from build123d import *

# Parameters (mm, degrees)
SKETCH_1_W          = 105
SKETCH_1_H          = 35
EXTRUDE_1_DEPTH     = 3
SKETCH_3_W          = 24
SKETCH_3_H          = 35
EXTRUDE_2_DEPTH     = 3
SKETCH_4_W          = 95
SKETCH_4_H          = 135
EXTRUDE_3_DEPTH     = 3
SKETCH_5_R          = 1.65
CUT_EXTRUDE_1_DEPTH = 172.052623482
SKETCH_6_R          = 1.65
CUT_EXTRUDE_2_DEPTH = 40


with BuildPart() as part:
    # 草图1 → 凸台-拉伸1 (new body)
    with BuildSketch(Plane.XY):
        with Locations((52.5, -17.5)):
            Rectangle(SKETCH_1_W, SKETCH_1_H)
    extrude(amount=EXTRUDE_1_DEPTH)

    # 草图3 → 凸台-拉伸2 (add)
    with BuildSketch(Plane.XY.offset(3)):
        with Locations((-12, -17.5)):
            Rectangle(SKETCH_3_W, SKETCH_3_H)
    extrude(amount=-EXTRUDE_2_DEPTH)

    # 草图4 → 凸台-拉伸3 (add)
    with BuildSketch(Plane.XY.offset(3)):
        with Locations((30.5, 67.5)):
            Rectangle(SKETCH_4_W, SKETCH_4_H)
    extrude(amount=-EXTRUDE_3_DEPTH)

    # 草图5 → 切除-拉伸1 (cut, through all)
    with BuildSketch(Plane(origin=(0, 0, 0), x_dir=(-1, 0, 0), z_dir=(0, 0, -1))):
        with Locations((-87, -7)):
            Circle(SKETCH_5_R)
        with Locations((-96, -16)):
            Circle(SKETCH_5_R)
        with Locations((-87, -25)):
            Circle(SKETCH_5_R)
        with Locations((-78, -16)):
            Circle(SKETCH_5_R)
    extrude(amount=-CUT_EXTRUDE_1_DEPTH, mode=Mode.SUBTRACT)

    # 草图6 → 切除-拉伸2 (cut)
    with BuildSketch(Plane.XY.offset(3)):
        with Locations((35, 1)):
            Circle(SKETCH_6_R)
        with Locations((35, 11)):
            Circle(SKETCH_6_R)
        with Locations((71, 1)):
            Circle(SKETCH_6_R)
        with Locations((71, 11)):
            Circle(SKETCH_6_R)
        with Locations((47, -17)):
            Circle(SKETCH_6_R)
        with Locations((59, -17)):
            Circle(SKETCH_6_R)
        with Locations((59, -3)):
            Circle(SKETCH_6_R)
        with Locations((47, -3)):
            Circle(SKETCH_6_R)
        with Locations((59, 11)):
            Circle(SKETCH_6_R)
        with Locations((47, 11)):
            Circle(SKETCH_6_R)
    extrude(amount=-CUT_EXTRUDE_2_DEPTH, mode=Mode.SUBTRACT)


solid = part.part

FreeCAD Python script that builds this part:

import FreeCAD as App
import Part
import Sketcher
from FreeCAD import Vector


def add_polygon(sketch, points):
    """Adds a closed chain of lines whose ends are joined by coincident constraints."""
    first, n = sketch.GeometryCount, len(points)
    for a, b in zip(points, points[1:] + points[:1]):
        sketch.addGeometry(Part.LineSegment(App.Vector(*a, 0), App.Vector(*b, 0)), False)
    for i in range(n):
        sketch.addConstraint(Sketcher.Constraint("Coincident", first + i, 2, first + (i + 1) % n, 1))

doc = App.newDocument("Part")
params = doc.addObject("Spreadsheet::Sheet", "Params")
for row, (alias, value) in enumerate([
    ("sketch1_width", "105 mm"),
    ("sketch1_height", "35 mm"),
    ("pad1_length", "3 mm"),
    ("sketch2_width", "24 mm"),
    ("sketch2_height", "35 mm"),
    ("pad2_length", "3 mm"),
    ("sketch3_width", "95 mm"),
    ("sketch3_height", "135 mm"),
    ("pad3_length", "3 mm"),
    ("sketch4_diameter", "3.3 mm"),
    ("sketch5_diameter", "3.3 mm"),
    ("pocket2_length", "40 mm"),
], start=1):
    params.set(f"A{row}", alias)
    params.set(f"B{row}", "=" + value)
    params.setAlias(f"B{row}", alias)

body = doc.addObject("PartDesign::Body", "Body")

# Sketch on XY plane
sketch1 = doc.addObject("Sketcher::SketchObject", "Sketch")
body.addObject(sketch1)
sketch1.AttachmentSupport = (doc.XY_Plane, [""])
sketch1.MapMode = "FlatFace"
add_polygon(sketch1, [(0, 0), (0, -35), (105, -35), (105, 0)])  # lines 0-3
sketch1.addConstraint(Sketcher.Constraint("Vertical", 0))
sketch1.addConstraint(Sketcher.Constraint("Horizontal", 1))
sketch1.addConstraint(Sketcher.Constraint("Vertical", 2))
sketch1.addConstraint(Sketcher.Constraint("Horizontal", 3))
sketch1.addConstraint(Sketcher.Constraint("Coincident", 3, 2, -1, 1))
sketch1.addConstraint(Sketcher.Constraint("DistanceX", 1, 1, 1, 2, 105.0))
sketch1.addConstraint(Sketcher.Constraint("DistanceY", 0, 2, 0, 1, 35.0))
sketch1.setExpression("Constraints[9]", "Params.sketch1_width")
sketch1.setExpression("Constraints[10]", "Params.sketch1_height")
pad1 = doc.addObject("PartDesign::Pad", "Pad")
body.addObject(pad1)
pad1.Profile = sketch1
pad1.setExpression("Length", "Params.pad1_length")

# Sketch on XY plane
sketch2 = doc.addObject("Sketcher::SketchObject", "Sketch001")
body.addObject(sketch2)
sketch2.AttachmentSupport = (doc.XY_Plane, [""])
sketch2.MapMode = "FlatFace"
sketch2.AttachmentOffset = App.Placement(Vector(0, 0, 3), App.Rotation())
add_polygon(sketch2, [(-24, 0), (-24, -35), (0, -35), (0, 0)])  # lines 0-3
sketch2.addConstraint(Sketcher.Constraint("Vertical", 0))
sketch2.addConstraint(Sketcher.Constraint("Horizontal", 1))
sketch2.addConstraint(Sketcher.Constraint("Vertical", 2))
sketch2.addConstraint(Sketcher.Constraint("Horizontal", 3))
sketch2.addConstraint(Sketcher.Constraint("Coincident", 2, 2, -1, 1))
sketch2.addConstraint(Sketcher.Constraint("DistanceX", 1, 1, 1, 2, 24.0))
sketch2.addConstraint(Sketcher.Constraint("DistanceY", 0, 2, 0, 1, 35.0))
sketch2.setExpression("Constraints[9]", "Params.sketch2_width")
sketch2.setExpression("Constraints[10]", "Params.sketch2_height")
pad2 = doc.addObject("PartDesign::Pad", "Pad001")
body.addObject(pad2)
pad2.Profile = sketch2
pad2.setExpression("Length", "Params.pad2_length")
pad2.Reversed = True

# Sketch on XY plane
sketch3 = doc.addObject("Sketcher::SketchObject", "Sketch002")
body.addObject(sketch3)
sketch3.AttachmentSupport = (doc.XY_Plane, [""])
sketch3.MapMode = "FlatFace"
sketch3.AttachmentOffset = App.Placement(Vector(0, 0, 3), App.Rotation())
add_polygon(sketch3, [(-17, 135), (-17, 0), (78, 0), (78, 135)])  # lines 0-3
sketch3.addConstraint(Sketcher.Constraint("Vertical", 0))
sketch3.addConstraint(Sketcher.Constraint("Horizontal", 1))
sketch3.addConstraint(Sketcher.Constraint("Vertical", 2))
sketch3.addConstraint(Sketcher.Constraint("Horizontal", 3))
sketch3.addConstraint(Sketcher.Constraint("PointOnObject", 0, 2, -1))
sketch3.addConstraint(Sketcher.Constraint("DistanceX", 1, 1, 1, 2, 95.0))
sketch3.addConstraint(Sketcher.Constraint("DistanceY", 0, 2, 0, 1, 135.0))
sketch3.addConstraint(Sketcher.Constraint("DistanceX", 0, 2, -1, 1, 17.0))
sketch3.setExpression("Constraints[9]", "Params.sketch3_width")
sketch3.setExpression("Constraints[10]", "Params.sketch3_height")
pad3 = doc.addObject("PartDesign::Pad", "Pad002")
body.addObject(pad3)
pad3.Profile = sketch3
pad3.setExpression("Length", "Params.pad3_length")
pad3.Reversed = True

# Sketch on XY plane
sketch4 = doc.addObject("Sketcher::SketchObject", "Sketch003")
body.addObject(sketch4)
sketch4.AttachmentSupport = (doc.XY_Plane, [""])
sketch4.MapMode = "FlatFace"
sketch4.addGeometry(Part.Circle(Vector(87, -7, 0), Vector(0, 0, 1), 1.6), False)
sketch4.addGeometry(Part.Circle(Vector(96, -16, 0), Vector(0, 0, 1), 1.6), False)
sketch4.addGeometry(Part.Circle(Vector(87, -25, 0), Vector(0, 0, 1), 1.6), False)
sketch4.addGeometry(Part.Circle(Vector(78, -16, 0), Vector(0, 0, 1), 1.6), False)
sketch4.addConstraint(Sketcher.Constraint("Equal", 0, 1))
sketch4.addConstraint(Sketcher.Constraint("Equal", 1, 2))
sketch4.addConstraint(Sketcher.Constraint("Equal", 2, 3))
sketch4.addConstraint(Sketcher.Constraint("Horizontal", 1, 3, 3, 3))
sketch4.addConstraint(Sketcher.Constraint("Vertical", 0, 3, 2, 3))
sketch4.addConstraint(Sketcher.Constraint("Diameter", 0, 3.3))
sketch4.addConstraint(Sketcher.Constraint("DistanceX", -1, 1, 0, 3, 87.0))
sketch4.addConstraint(Sketcher.Constraint("DistanceY", 0, 3, -1, 1, 7.0))
sketch4.addConstraint(Sketcher.Constraint("DistanceX", -1, 1, 1, 3, 96.0))
sketch4.addConstraint(Sketcher.Constraint("DistanceY", 1, 3, -1, 1, 16.0))
sketch4.addConstraint(Sketcher.Constraint("DistanceY", 2, 3, -1, 1, 25.0))
sketch4.addConstraint(Sketcher.Constraint("DistanceX", -1, 1, 3, 3, 78.0))
sketch4.setExpression("Constraints[5]", "Params.sketch4_diameter")
pocket1 = doc.addObject("PartDesign::Pocket", "Pocket")
body.addObject(pocket1)
pocket1.Profile = sketch4
pocket1.Type = "ThroughAll"
pocket1.Reversed = True

# Sketch on XY plane
sketch5 = doc.addObject("Sketcher::SketchObject", "Sketch004")
body.addObject(sketch5)
sketch5.AttachmentSupport = (doc.XY_Plane, [""])
sketch5.MapMode = "FlatFace"
sketch5.AttachmentOffset = App.Placement(Vector(0, 0, 3), App.Rotation())
sketch5.addGeometry(Part.Circle(Vector(35, 1, 0), Vector(0, 0, 1), 1.6), False)
sketch5.addGeometry(Part.Circle(Vector(35, 11, 0), Vector(0, 0, 1), 1.6), False)
sketch5.addGeometry(Part.Circle(Vector(71, 1, 0), Vector(0, 0, 1), 1.6), False)
sketch5.addGeometry(Part.Circle(Vector(71, 11, 0), Vector(0, 0, 1), 1.6), False)
sketch5.addGeometry(Part.Circle(Vector(47, -17, 0), Vector(0, 0, 1), 1.6), False)
sketch5.addGeometry(Part.Circle(Vector(59, -17, 0), Vector(0, 0, 1), 1.6), False)
sketch5.addGeometry(Part.Circle(Vector(59, -3, 0), Vector(0, 0, 1), 1.6), False)
sketch5.addGeometry(Part.Circle(Vector(47, -3, 0), Vector(0, 0, 1), 1.6), False)
sketch5.addGeometry(Part.Circle(Vector(59, 11, 0), Vector(0, 0, 1), 1.6), False)
sketch5.addGeometry(Part.Circle(Vector(47, 11, 0), Vector(0, 0, 1), 1.6), False)
sketch5.addConstraint(Sketcher.Constraint("Equal", 0, 1))
sketch5.addConstraint(Sketcher.Constraint("Equal", 1, 2))
sketch5.addConstraint(Sketcher.Constraint("Equal", 2, 3))
sketch5.addConstraint(Sketcher.Constraint("Equal", 3, 4))
sketch5.addConstraint(Sketcher.Constraint("Equal", 4, 5))
sketch5.addConstraint(Sketcher.Constraint("Equal", 5, 6))
sketch5.addConstraint(Sketcher.Constraint("Equal", 6, 7))
sketch5.addConstraint(Sketcher.Constraint("Equal", 7, 8))
sketch5.addConstraint(Sketcher.Constraint("Equal", 8, 9))
sketch5.addConstraint(Sketcher.Constraint("Horizontal", 0, 3, 2, 3))
sketch5.addConstraint(Sketcher.Constraint("Horizontal", 1, 3, 3, 3))
sketch5.addConstraint(Sketcher.Constraint("Horizontal", 4, 3, 5, 3))
sketch5.addConstraint(Sketcher.Constraint("Horizontal", 6, 3, 7, 3))
sketch5.addConstraint(Sketcher.Constraint("Horizontal", 3, 3, 8, 3))
sketch5.addConstraint(Sketcher.Constraint("Horizontal", 8, 3, 9, 3))
sketch5.addConstraint(Sketcher.Constraint("Vertical", 0, 3, 1, 3))
sketch5.addConstraint(Sketcher.Constraint("Vertical", 2, 3, 3, 3))
sketch5.addConstraint(Sketcher.Constraint("Vertical", 5, 3, 6, 3))
sketch5.addConstraint(Sketcher.Constraint("Vertical", 4, 3, 7, 3))
sketch5.addConstraint(Sketcher.Constraint("Vertical", 6, 3, 8, 3))
sketch5.addConstraint(Sketcher.Constraint("Vertical", 7, 3, 9, 3))
sketch5.addConstraint(Sketcher.Constraint("Diameter", 0, 3.3))
sketch5.addConstraint(Sketcher.Constraint("DistanceX", -1, 1, 0, 3, 35.0))
sketch5.addConstraint(Sketcher.Constraint("DistanceY", -1, 1, 0, 3, 1.0))
sketch5.addConstraint(Sketcher.Constraint("DistanceY", -1, 1, 1, 3, 11.0))
sketch5.addConstraint(Sketcher.Constraint("DistanceX", -1, 1, 2, 3, 71.0))
sketch5.addConstraint(Sketcher.Constraint("DistanceX", -1, 1, 4, 3, 47.0))
sketch5.addConstraint(Sketcher.Constraint("DistanceY", 4, 3, -1, 1, 17.0))
sketch5.addConstraint(Sketcher.Constraint("DistanceX", -1, 1, 5, 3, 59.0))
sketch5.addConstraint(Sketcher.Constraint("DistanceY", 6, 3, -1, 1, 3.0))
sketch5.setExpression("Constraints[21]", "Params.sketch5_diameter")
pocket2 = doc.addObject("PartDesign::Pocket", "Pocket001")
body.addObject(pocket2)
pocket2.Profile = sketch5
pocket2.setExpression("Length", "Params.pocket2_length")

doc.recompute()
